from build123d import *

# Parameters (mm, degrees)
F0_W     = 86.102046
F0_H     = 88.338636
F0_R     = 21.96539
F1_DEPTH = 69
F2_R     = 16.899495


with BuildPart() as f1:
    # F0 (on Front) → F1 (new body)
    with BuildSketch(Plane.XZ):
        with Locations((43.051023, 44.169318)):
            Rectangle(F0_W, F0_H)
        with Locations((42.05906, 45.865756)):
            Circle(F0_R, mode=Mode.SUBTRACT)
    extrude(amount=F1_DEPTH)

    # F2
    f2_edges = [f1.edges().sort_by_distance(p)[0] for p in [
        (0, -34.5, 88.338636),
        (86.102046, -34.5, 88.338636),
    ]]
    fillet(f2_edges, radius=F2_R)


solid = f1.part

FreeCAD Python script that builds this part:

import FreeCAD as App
import Part
import Sketcher

V = App.Vector
Q = App.Units.Quantity


def edges_at(feature, points):
    """Names of the edges that pass closest to the given points."""
    edges = feature.Shape.Edges
    near = lambda p: min(range(len(edges)), key=lambda i: edges[i].distToShape(Part.Vertex(*p))[0])
    return sorted({f"Edge{near(p) + 1}" for p in points})


def add_polygon(sketch, points):
    """Adds a closed chain of lines whose ends are joined by coincident constraints."""
    first, n = sketch.GeometryCount, len(points)
    for a, b in zip(points, points[1:] + points[:1]):
        sketch.addGeometry(Part.LineSegment(App.Vector(*a, 0), App.Vector(*b, 0)), False)
    for i in range(n):
        sketch.addConstraint(Sketcher.Constraint("Coincident", first + i, 2, first + (i + 1) % n, 1))

doc = App.newDocument("Part")
body = doc.addObject("PartDesign::Body", "Body")

# Sketch on XZ plane
sketch1 = doc.addObject("Sketcher::SketchObject", "Sketch")
body.addObject(sketch1)
sketch1.AttachmentSupport = (doc.XZ_Plane, [""])
sketch1.MapMode = "FlatFace"
add_polygon(sketch1, [(0, 88), (0, 0), (86, 0), (86, 88)])  # lines 0-3
sketch1.addGeometry(Part.Circle(V(42, 46, 0), V(0, 0, 1), 22), False)  # 4
sketch1.addConstraint([
    Sketcher.Constraint("Vertical", 0),
    Sketcher.Constraint("Horizontal", 1),
    Sketcher.Constraint("Vertical", 2),
    Sketcher.Constraint("Horizontal", 3),
    Sketcher.Constraint("Coincident", 0, 2, -1, 1),
    Sketcher.Constraint("Diameter", 4, Q("43.93078 mm")),
    Sketcher.Constraint("DistanceX", 1, 1, 1, 2, Q("86.102046 mm")),
    Sketcher.Constraint("DistanceY", 0, 2, 0, 1, Q("88.338636 mm")),
    Sketcher.Constraint("DistanceX", -1, 1, 4, 3, Q("42.05906 mm")),
    Sketcher.Constraint("DistanceY", 4, 3, 2, 2, Q("42.47288 mm")),
])
pad1 = doc.addObject("PartDesign::Pad", "Pad")
body.addObject(pad1)
pad1.Profile = sketch1
pad1.Length = 69
doc.recompute()

fillet = doc.addObject("PartDesign::Fillet", "Fillet")
body.addObject(fillet)
fillet.Base = (pad1, edges_at(pad1, [(0, -34.5, 88.339), (86.102, -34.5, 88.339)]))
fillet.Radius = 16.899495

doc.recompute()
